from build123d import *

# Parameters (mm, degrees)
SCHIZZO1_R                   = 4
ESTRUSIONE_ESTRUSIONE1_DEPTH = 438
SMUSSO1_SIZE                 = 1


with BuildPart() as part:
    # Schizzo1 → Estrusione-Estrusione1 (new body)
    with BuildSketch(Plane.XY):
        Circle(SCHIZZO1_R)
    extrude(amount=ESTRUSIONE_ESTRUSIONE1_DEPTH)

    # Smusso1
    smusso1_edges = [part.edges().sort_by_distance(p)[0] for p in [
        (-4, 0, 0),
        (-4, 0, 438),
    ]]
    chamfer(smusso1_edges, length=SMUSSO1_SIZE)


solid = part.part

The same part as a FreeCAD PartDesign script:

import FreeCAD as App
import Part
import Sketcher
from FreeCAD import Vector


def edges_at(feature, points):
    """Names of the edges that pass closest to the given points."""
    edges = feature.Shape.Edges
    near = lambda p: min(range(len(edges)), key=lambda i: edges[i].distToShape(Part.Vertex(*p))[0])
    return sorted({f"Edge{near(p) + 1}" for p in points})

doc = App.newDocument("Part")
body = doc.addObject("PartDesign::Body", "Body")

sketch1 = body.newObject("Sketcher::SketchObject", "Sketch")
sketch1.AttachmentSupport = (doc.getObject("XY_Plane"), [""])
sketch1.MapMode = "FlatFace"
sketch1.addGeometry(Part.Circle(Vector(0, 0, 0), Vector(0, 0, 1), 4), False)
sketch1.addConstraint([
    Sketcher.Constraint("Coincident", 0, 3, -1, 1),
    Sketcher.Constraint("Diameter", 0, 8.0),
])
pad1 = body.newObject("PartDesign::Pad", "Pad")
pad1.Profile = sketch1
pad1.Length = 438
doc.recompute()

chamfer = body.newObject("PartDesign::Chamfer", "Chamfer")
chamfer.Base = (pad1, edges_at(pad1, [(-4, 0, 0), (-4, 0, 438)]))
chamfer.Size = 1

doc.recompute()
